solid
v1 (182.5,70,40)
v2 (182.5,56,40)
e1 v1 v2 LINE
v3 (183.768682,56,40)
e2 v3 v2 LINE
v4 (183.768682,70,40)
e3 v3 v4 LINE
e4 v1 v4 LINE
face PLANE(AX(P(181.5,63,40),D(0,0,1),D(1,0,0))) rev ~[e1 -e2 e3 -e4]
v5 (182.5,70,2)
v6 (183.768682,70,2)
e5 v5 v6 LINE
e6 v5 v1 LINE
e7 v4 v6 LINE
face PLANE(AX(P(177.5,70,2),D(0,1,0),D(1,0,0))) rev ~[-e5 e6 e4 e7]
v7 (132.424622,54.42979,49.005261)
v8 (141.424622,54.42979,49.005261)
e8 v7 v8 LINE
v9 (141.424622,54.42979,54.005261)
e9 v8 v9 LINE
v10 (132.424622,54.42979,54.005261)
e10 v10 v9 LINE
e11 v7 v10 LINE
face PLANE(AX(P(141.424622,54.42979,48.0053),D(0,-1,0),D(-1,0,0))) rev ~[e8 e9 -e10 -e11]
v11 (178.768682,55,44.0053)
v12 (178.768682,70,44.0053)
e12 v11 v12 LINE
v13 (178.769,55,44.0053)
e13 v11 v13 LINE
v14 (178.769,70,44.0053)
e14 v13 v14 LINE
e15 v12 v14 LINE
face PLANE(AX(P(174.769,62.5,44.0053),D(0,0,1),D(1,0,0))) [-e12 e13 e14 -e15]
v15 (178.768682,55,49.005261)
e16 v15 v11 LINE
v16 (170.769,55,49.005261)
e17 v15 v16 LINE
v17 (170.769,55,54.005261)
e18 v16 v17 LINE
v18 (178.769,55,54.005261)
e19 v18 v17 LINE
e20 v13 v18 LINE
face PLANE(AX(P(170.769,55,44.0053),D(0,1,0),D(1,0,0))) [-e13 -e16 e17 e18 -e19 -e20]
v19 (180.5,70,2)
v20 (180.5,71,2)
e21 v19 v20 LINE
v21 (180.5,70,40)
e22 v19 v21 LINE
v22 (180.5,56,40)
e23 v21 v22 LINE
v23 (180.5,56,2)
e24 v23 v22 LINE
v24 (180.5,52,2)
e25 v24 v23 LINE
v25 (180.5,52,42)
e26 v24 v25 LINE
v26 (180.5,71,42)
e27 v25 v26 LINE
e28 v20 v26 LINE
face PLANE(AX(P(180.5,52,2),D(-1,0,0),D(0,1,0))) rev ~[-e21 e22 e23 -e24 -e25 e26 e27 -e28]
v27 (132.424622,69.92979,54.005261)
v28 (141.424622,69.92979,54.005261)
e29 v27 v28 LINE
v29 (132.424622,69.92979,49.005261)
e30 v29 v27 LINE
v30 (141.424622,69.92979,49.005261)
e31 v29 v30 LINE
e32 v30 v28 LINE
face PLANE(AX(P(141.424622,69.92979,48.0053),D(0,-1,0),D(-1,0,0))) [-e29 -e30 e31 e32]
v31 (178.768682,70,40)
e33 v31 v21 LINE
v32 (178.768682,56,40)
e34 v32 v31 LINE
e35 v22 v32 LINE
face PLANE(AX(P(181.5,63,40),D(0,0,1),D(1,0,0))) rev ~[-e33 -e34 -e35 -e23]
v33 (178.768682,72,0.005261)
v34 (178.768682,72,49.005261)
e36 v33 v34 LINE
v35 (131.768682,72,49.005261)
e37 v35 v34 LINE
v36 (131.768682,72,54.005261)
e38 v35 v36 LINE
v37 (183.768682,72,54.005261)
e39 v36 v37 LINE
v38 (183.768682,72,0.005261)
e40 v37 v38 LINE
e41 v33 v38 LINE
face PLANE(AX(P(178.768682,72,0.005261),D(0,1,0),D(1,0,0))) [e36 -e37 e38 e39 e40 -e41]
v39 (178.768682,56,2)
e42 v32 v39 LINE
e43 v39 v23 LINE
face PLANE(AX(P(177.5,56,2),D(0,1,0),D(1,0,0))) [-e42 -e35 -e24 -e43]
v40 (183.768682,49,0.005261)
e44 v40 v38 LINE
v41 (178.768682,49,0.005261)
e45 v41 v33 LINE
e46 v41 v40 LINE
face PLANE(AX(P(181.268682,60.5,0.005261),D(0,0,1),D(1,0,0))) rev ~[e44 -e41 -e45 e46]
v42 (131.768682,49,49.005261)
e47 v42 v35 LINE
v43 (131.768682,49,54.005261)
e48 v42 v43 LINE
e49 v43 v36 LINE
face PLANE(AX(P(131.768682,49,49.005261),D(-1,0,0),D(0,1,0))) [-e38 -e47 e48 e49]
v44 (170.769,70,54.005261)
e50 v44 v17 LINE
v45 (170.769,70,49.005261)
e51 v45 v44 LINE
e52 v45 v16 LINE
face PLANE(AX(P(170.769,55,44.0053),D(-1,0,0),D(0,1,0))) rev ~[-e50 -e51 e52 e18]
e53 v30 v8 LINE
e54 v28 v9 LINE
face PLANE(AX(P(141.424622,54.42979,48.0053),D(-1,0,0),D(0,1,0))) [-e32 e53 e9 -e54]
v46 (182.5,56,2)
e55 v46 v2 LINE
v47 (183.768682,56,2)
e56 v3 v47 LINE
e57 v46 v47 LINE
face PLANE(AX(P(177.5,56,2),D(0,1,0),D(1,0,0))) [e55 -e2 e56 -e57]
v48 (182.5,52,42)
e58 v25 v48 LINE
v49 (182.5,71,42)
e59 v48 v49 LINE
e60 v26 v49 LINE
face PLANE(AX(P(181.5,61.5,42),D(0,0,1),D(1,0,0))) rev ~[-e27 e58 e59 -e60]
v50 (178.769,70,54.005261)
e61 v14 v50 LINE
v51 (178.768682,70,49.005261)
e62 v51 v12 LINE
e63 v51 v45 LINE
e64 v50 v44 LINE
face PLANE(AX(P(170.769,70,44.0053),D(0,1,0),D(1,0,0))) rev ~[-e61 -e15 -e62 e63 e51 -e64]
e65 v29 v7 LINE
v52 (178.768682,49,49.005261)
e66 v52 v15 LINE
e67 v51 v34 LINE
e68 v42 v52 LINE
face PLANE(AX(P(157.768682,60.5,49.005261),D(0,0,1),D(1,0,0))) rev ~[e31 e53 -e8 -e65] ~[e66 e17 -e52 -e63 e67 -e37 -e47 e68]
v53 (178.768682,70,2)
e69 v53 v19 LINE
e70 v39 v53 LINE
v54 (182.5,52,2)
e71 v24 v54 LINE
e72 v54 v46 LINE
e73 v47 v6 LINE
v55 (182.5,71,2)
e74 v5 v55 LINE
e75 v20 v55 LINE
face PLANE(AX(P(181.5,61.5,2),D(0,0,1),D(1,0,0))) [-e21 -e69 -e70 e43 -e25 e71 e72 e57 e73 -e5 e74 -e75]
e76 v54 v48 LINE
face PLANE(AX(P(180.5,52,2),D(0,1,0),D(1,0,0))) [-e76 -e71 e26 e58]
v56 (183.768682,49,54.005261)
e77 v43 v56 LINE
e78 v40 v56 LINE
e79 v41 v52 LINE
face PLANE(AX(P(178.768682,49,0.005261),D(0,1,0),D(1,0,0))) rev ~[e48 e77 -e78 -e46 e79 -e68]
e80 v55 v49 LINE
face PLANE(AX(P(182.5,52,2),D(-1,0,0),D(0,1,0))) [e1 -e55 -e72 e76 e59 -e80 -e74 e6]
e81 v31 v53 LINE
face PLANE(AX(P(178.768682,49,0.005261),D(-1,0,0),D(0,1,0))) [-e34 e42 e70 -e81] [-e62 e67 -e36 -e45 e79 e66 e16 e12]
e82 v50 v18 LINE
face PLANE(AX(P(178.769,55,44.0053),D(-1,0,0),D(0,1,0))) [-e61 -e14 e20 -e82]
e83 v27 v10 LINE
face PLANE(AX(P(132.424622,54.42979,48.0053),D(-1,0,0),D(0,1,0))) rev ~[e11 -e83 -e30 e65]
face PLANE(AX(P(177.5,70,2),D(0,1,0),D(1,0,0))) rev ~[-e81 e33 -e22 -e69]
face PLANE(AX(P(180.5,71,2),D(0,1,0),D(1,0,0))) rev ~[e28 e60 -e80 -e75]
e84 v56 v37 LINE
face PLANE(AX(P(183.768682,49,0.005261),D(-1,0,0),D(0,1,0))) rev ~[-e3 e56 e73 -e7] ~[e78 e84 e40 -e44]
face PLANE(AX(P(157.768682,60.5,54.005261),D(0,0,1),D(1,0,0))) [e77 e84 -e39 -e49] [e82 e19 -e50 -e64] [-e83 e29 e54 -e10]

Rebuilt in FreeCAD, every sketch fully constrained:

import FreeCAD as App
import Part
import Sketcher
from FreeCAD import Vector
Q = App.Units.Quantity


def add_polygon(sketch, points):
    """Adds a closed chain of lines whose ends are joined by coincident constraints."""
    first, n = sketch.GeometryCount, len(points)
    for a, b in zip(points, points[1:] + points[:1]):
        sketch.addGeometry(Part.LineSegment(App.Vector(*a, 0), App.Vector(*b, 0)), False)
    for i in range(n):
        sketch.addConstraint(Sketcher.Constraint("Coincident", first + i, 2, first + (i + 1) % n, 1))

doc = App.newDocument("Part")
body = doc.addObject("PartDesign::Body", "Body")

sketch1 = body.newObject("Sketcher::SketchObject", "Sketch")
sketch1.AttachmentSupport = (doc.getObject("XY_Plane"), [""])
sketch1.MapMode = "FlatFace"
add_polygon(sketch1, [(-5, 10), (-5, 1), (11, 1), (11, 10)])
sketch1.addConstraint([
    Sketcher.Constraint("Vertical", 0),
    Sketcher.Constraint("Horizontal", 1),
    Sketcher.Constraint("Vertical", 2),
    Sketcher.Constraint("Horizontal", 3),
    Sketcher.Constraint("DistanceY", 0, 2, 0, 1, Q("9 mm")),
    Sketcher.Constraint("DistanceX", 1, 1, 1, 2, Q("15.5 mm")),
    Sketcher.Constraint("DistanceX", 0, 2, -1, 1, Q("4.55141 mm")),
    Sketcher.Constraint("DistanceY", -1, 1, 0, 2, Q("1.367378 mm")),
])
pad1 = body.newObject("PartDesign::Pad", "Pad")
pad1.Profile = sketch1
pad1.Length = 6
body2 = doc.addObject("PartDesign::Body", "Body001")
doc.recompute()

body.Placement = App.Placement(Vector(142.792, 58.9812, 48.0053), App.Rotation(Vector(0, 0, 1), 90))
boolean = body2.newObject("PartDesign::Boolean", "Boolean")
boolean.Type = "Fuse"
boolean.addObjects([body])
body3 = doc.addObject("PartDesign::Body", "Body002")

sketch2 = body3.newObject("Sketcher::SketchObject", "Sketch001")
sketch2.AttachmentSupport = (doc.getObject("XY_Plane002"), [""])
sketch2.MapMode = "FlatFace"
sketch2.AttachmentOffset = App.Placement(Vector(0, 0, 44.0053), App.Rotation())
add_polygon(sketch2, [(171, 70), (171, 55), (179, 55), (179, 70)])
sketch2.addConstraint([
    Sketcher.Constraint("Vertical", 0),
    Sketcher.Constraint("Horizontal", 1),
    Sketcher.Constraint("Vertical", 2),
    Sketcher.Constraint("Horizontal", 3),
    Sketcher.Constraint("DistanceX", 1, 1, 1, 2, Q("8 mm")),
    Sketcher.Constraint("DistanceY", 0, 2, 0, 1, Q("15 mm")),
    Sketcher.Constraint("DistanceY", -1, 1, 0, 2, Q("55 mm")),
    Sketcher.Constraint("DistanceX", -1, 1, 0, 2, Q("170.769 mm")),
])
pad2 = body3.newObject("PartDesign::Pad", "Pad001")
pad2.Profile = sketch2
pad2.Length = 15
body4 = doc.addObject("PartDesign::Body", "Body003")

sketch3 = body4.newObject("Sketcher::SketchObject", "Sketch002")
sketch3.AttachmentSupport = (doc.getObject("XY_Plane003"), [""])
sketch3.MapMode = "FlatFace"
sketch3.AttachmentOffset = App.Placement(Vector(0, 0, 3), App.Rotation())
add_polygon(sketch3, [(201.5, 55), (201.5, 41), (203.5, 41), (203.5, 55)])
sketch3.addConstraint([
    Sketcher.Constraint("Vertical", 0),
    Sketcher.Constraint("Horizontal", 1),
    Sketcher.Constraint("Vertical", 2),
    Sketcher.Constraint("Horizontal", 3),
    Sketcher.Constraint("DistanceX", 1, 1, 1, 2, Q("2 mm")),
    Sketcher.Constraint("DistanceY", 0, 2, 0, 1, Q("14 mm")),
    Sketcher.Constraint("DistanceY", -1, 1, 0, 2, Q("41 mm")),
    Sketcher.Constraint("DistanceX", -1, 1, 0, 2, Q("201.5 mm")),
])
pad3 = body4.newObject("PartDesign::Pad", "Pad002")
pad3.Profile = sketch3
pad3.Length = 37
body5 = doc.addObject("PartDesign::Body", "Body004")

sketch4 = body5.newObject("Sketcher::SketchObject", "Sketch003")
sketch4.AttachmentSupport = (doc.getObject("XY_Plane004"), [""])
sketch4.MapMode = "FlatFace"
sketch4.AttachmentOffset = App.Placement(Vector(0, 0, 2), App.Rotation())
add_polygon(sketch4, [(203.5, 56), (203.5, 37), (205.5, 37), (205.5, 56)])
sketch4.addConstraint([
    Sketcher.Constraint("Vertical", 0),
    Sketcher.Constraint("Horizontal", 1),
    Sketcher.Constraint("Vertical", 2),
    Sketcher.Constraint("Horizontal", 3),
    Sketcher.Constraint("DistanceX", 1, 1, 1, 2, Q("2 mm")),
    Sketcher.Constraint("DistanceY", 0, 2, 0, 1, Q("19 mm")),
    Sketcher.Constraint("DistanceY", -1, 1, 0, 2, Q("37 mm")),
    Sketcher.Constraint("DistanceX", -1, 1, 0, 2, Q("203.5 mm")),
])
pad4 = body5.newObject("PartDesign::Pad", "Pad003")
pad4.Profile = sketch4
pad4.Length = 40
body6 = doc.addObject("PartDesign::Body", "Body005")

sketch5 = body6.newObject("Sketcher::SketchObject", "Sketch004")
sketch5.AttachmentSupport = (doc.getObject("XY_Plane005"), [""])
sketch5.MapMode = "FlatFace"
sketch5.AttachmentOffset = App.Placement(Vector(0, 0, 2), App.Rotation())
add_polygon(sketch5, [(200, 55), (200, 41), (208, 41), (208, 55)])
sketch5.addConstraint([
    Sketcher.Constraint("Vertical", 0),
    Sketcher.Constraint("Horizontal", 1),
    Sketcher.Constraint("Vertical", 2),
    Sketcher.Constraint("Horizontal", 3),
    Sketcher.Constraint("DistanceX", 1, 1, 1, 2, Q("8 mm")),
    Sketcher.Constraint("DistanceY", 0, 2, 0, 1, Q("14 mm")),
    Sketcher.Constraint("DistanceY", -1, 1, 0, 2, Q("41 mm")),
    Sketcher.Constraint("DistanceX", -1, 1, 0, 2, Q("200.5 mm")),
])
pad5 = body6.newObject("PartDesign::Pad", "Pad004")
pad5.Profile = sketch5
pad5.Length = 38
doc.recompute()

boolean2 = body6.newObject("PartDesign::Boolean", "Boolean001")
boolean2.Type = "Fuse"
boolean2.addObjects([body4])
doc.recompute()

boolean3 = body6.newObject("PartDesign::Boolean", "Boolean002")
boolean3.Type = "Fuse"
boolean3.addObjects([body5])
body7 = doc.addObject("PartDesign::Body", "Body006")

sketch6 = body7.newObject("Sketcher::SketchObject", "Sketch005")
sketch6.AttachmentSupport = (doc.getObject("XY_Plane006"), [""])
sketch6.MapMode = "FlatFace"
sketch6.AttachmentOffset = App.Placement(Vector(0, 0, 0.005261), App.Rotation())
add_polygon(sketch6, [(202, 61), (202, 38), (207, 38), (207, 61)])
sketch6.addConstraint([
    Sketcher.Constraint("Vertical", 0),
    Sketcher.Constraint("Horizontal", 1),
    Sketcher.Constraint("Vertical", 2),
    Sketcher.Constraint("Horizontal", 3),
    Sketcher.Constraint("DistanceX", 1, 1, 1, 2, Q("5 mm")),
    Sketcher.Constraint("DistanceY", 0, 2, 0, 1, Q("23 mm")),
    Sketcher.Constraint("DistanceY", -1, 1, 0, 2, Q("38 mm")),
    Sketcher.Constraint("DistanceX", -1, 1, 0, 2, Q("201.768682 mm")),
])
pad6 = body7.newObject("PartDesign::Pad", "Pad005")
pad6.Profile = sketch6
pad6.Length = 49
body8 = doc.addObject("PartDesign::Body", "Body007")

sketch7 = body8.newObject("Sketcher::SketchObject", "Sketch006")
sketch7.AttachmentSupport = (doc.getObject("XY_Plane007"), [""])
sketch7.MapMode = "FlatFace"
sketch7.AttachmentOffset = App.Placement(Vector(0, 0, 49.005261), App.Rotation())
add_polygon(sketch7, [(155, 61), (155, 38), (207, 38), (207, 61)])
sketch7.addConstraint([
    Sketcher.Constraint("Vertical", 0),
    Sketcher.Constraint("Horizontal", 1),
    Sketcher.Constraint("Vertical", 2),
    Sketcher.Constraint("Horizontal", 3),
    Sketcher.Constraint("DistanceX", 1, 1, 1, 2, Q("52 mm")),
    Sketcher.Constraint("DistanceY", 0, 2, 0, 1, Q("23 mm")),
    Sketcher.Constraint("DistanceY", -1, 1, 0, 2, Q("38 mm")),
    Sketcher.Constraint("DistanceX", -1, 1, 0, 2, Q("154.768682 mm")),
])
pad7 = body8.newObject("PartDesign::Pad", "Pad006")
pad7.Profile = sketch7
pad7.Length = 5
doc.recompute()

boolean4 = body8.newObject("PartDesign::Boolean", "Boolean003")
boolean4.Type = "Fuse"
boolean4.addObjects([body7])
body9 = doc.addObject("PartDesign::Body", "Body008")
doc.recompute()

body8.Placement = App.Placement(Vector(0, -4, 0), App.Rotation(Vector(0, 0, 1), 0))
boolean5 = body9.newObject("PartDesign::Boolean", "Boolean004")
boolean5.Type = "Fuse"
boolean5.addObjects([body8])
doc.recompute()

boolean6 = body9.newObject("PartDesign::Boolean", "Boolean005")
boolean6.Type = "Cut"
boolean6.addObjects([body6])
body10 = doc.addObject("PartDesign::Body", "Body009")
doc.recompute()

body9.Placement = App.Placement(Vector(-23, 15, 0), App.Rotation(Vector(0, 0, 1), 0))
boolean7 = body10.newObject("PartDesign::Boolean", "Boolean006")
boolean7.Type = "Fuse"
boolean7.addObjects([body9])
doc.recompute()

boolean8 = body10.newObject("PartDesign::Boolean", "Boolean007")
boolean8.Type = "Cut"
boolean8.addObjects([body3])
doc.recompute()

boolean9 = body10.newObject("PartDesign::Boolean", "Boolean008")
boolean9.Type = "Cut"
boolean9.addObjects([body2])

doc.recompute()
